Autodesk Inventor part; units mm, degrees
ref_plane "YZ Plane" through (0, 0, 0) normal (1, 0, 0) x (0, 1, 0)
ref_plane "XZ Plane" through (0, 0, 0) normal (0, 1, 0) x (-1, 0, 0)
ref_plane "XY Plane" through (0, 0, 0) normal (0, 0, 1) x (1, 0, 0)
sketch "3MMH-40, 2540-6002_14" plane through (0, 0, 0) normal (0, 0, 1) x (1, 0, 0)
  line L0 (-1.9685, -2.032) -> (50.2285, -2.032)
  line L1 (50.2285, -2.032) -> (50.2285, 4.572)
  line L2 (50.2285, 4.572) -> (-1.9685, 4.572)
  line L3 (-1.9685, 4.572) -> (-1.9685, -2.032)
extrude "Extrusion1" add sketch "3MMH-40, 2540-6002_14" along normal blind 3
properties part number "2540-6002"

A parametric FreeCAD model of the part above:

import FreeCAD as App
import Part
import Sketcher
from FreeCAD import Vector
Q = App.Units.Quantity


def add_polygon(sketch, points):
    """Adds a closed chain of lines whose ends are joined by coincident constraints."""
    first, n = sketch.GeometryCount, len(points)
    for a, b in zip(points, points[1:] + points[:1]):
        sketch.addGeometry(Part.LineSegment(App.Vector(*a, 0), App.Vector(*b, 0)), False)
    for i in range(n):
        sketch.addConstraint(Sketcher.Constraint("Coincident", first + i, 2, first + (i + 1) % n, 1))

doc = App.newDocument("Part")
params = doc.addObject("Spreadsheet::Sheet", "Params")
for row, (alias, value) in enumerate([
    ("sketch1_height", "0.26 in"),
    ("sketch1_width", "2.055 in"),
    ("pad1_length", "0.1181102 in"),
], start=1):
    params.set(f"A{row}", alias)
    params.set(f"B{row}", "=" + value)
    params.setAlias(f"B{row}", alias)

body = doc.addObject("PartDesign::Body", "Body")

# Sketch on XY plane
sketch1 = body.newObject("Sketcher::SketchObject", "Sketch")
sketch1.AttachmentSupport = (doc.getObject("XY_Plane"), [""])
sketch1.MapMode = "FlatFace"
add_polygon(sketch1, [(-2, 5), (-2, -2), (50, -2), (50, 5)])  # lines 0-3
sketch1.addConstraint([
    Sketcher.Constraint("Vertical", 0),
    Sketcher.Constraint("Horizontal", 1),
    Sketcher.Constraint("Vertical", 2),
    Sketcher.Constraint("Horizontal", 3),
    Sketcher.Constraint("DistanceY", 0, 2, 0, 1, Q("0.26 in")),
    Sketcher.Constraint("DistanceX", 1, 1, 1, 2, Q("2.055 in")),
    Sketcher.Constraint("DistanceY", 0, 2, -1, 1, Q("0.08 in")),
    Sketcher.Constraint("DistanceX", 0, 2, -1, 1, Q("0.0775 in")),
])
sketch1.setExpression("Constraints[8]", "Params.sketch1_height")
sketch1.setExpression("Constraints[9]", "Params.sketch1_width")
pad1 = body.newObject("PartDesign::Pad", "Pad")
pad1.Profile = sketch1
pad1.setExpression("Length", "Params.pad1_length")

doc.recompute()
